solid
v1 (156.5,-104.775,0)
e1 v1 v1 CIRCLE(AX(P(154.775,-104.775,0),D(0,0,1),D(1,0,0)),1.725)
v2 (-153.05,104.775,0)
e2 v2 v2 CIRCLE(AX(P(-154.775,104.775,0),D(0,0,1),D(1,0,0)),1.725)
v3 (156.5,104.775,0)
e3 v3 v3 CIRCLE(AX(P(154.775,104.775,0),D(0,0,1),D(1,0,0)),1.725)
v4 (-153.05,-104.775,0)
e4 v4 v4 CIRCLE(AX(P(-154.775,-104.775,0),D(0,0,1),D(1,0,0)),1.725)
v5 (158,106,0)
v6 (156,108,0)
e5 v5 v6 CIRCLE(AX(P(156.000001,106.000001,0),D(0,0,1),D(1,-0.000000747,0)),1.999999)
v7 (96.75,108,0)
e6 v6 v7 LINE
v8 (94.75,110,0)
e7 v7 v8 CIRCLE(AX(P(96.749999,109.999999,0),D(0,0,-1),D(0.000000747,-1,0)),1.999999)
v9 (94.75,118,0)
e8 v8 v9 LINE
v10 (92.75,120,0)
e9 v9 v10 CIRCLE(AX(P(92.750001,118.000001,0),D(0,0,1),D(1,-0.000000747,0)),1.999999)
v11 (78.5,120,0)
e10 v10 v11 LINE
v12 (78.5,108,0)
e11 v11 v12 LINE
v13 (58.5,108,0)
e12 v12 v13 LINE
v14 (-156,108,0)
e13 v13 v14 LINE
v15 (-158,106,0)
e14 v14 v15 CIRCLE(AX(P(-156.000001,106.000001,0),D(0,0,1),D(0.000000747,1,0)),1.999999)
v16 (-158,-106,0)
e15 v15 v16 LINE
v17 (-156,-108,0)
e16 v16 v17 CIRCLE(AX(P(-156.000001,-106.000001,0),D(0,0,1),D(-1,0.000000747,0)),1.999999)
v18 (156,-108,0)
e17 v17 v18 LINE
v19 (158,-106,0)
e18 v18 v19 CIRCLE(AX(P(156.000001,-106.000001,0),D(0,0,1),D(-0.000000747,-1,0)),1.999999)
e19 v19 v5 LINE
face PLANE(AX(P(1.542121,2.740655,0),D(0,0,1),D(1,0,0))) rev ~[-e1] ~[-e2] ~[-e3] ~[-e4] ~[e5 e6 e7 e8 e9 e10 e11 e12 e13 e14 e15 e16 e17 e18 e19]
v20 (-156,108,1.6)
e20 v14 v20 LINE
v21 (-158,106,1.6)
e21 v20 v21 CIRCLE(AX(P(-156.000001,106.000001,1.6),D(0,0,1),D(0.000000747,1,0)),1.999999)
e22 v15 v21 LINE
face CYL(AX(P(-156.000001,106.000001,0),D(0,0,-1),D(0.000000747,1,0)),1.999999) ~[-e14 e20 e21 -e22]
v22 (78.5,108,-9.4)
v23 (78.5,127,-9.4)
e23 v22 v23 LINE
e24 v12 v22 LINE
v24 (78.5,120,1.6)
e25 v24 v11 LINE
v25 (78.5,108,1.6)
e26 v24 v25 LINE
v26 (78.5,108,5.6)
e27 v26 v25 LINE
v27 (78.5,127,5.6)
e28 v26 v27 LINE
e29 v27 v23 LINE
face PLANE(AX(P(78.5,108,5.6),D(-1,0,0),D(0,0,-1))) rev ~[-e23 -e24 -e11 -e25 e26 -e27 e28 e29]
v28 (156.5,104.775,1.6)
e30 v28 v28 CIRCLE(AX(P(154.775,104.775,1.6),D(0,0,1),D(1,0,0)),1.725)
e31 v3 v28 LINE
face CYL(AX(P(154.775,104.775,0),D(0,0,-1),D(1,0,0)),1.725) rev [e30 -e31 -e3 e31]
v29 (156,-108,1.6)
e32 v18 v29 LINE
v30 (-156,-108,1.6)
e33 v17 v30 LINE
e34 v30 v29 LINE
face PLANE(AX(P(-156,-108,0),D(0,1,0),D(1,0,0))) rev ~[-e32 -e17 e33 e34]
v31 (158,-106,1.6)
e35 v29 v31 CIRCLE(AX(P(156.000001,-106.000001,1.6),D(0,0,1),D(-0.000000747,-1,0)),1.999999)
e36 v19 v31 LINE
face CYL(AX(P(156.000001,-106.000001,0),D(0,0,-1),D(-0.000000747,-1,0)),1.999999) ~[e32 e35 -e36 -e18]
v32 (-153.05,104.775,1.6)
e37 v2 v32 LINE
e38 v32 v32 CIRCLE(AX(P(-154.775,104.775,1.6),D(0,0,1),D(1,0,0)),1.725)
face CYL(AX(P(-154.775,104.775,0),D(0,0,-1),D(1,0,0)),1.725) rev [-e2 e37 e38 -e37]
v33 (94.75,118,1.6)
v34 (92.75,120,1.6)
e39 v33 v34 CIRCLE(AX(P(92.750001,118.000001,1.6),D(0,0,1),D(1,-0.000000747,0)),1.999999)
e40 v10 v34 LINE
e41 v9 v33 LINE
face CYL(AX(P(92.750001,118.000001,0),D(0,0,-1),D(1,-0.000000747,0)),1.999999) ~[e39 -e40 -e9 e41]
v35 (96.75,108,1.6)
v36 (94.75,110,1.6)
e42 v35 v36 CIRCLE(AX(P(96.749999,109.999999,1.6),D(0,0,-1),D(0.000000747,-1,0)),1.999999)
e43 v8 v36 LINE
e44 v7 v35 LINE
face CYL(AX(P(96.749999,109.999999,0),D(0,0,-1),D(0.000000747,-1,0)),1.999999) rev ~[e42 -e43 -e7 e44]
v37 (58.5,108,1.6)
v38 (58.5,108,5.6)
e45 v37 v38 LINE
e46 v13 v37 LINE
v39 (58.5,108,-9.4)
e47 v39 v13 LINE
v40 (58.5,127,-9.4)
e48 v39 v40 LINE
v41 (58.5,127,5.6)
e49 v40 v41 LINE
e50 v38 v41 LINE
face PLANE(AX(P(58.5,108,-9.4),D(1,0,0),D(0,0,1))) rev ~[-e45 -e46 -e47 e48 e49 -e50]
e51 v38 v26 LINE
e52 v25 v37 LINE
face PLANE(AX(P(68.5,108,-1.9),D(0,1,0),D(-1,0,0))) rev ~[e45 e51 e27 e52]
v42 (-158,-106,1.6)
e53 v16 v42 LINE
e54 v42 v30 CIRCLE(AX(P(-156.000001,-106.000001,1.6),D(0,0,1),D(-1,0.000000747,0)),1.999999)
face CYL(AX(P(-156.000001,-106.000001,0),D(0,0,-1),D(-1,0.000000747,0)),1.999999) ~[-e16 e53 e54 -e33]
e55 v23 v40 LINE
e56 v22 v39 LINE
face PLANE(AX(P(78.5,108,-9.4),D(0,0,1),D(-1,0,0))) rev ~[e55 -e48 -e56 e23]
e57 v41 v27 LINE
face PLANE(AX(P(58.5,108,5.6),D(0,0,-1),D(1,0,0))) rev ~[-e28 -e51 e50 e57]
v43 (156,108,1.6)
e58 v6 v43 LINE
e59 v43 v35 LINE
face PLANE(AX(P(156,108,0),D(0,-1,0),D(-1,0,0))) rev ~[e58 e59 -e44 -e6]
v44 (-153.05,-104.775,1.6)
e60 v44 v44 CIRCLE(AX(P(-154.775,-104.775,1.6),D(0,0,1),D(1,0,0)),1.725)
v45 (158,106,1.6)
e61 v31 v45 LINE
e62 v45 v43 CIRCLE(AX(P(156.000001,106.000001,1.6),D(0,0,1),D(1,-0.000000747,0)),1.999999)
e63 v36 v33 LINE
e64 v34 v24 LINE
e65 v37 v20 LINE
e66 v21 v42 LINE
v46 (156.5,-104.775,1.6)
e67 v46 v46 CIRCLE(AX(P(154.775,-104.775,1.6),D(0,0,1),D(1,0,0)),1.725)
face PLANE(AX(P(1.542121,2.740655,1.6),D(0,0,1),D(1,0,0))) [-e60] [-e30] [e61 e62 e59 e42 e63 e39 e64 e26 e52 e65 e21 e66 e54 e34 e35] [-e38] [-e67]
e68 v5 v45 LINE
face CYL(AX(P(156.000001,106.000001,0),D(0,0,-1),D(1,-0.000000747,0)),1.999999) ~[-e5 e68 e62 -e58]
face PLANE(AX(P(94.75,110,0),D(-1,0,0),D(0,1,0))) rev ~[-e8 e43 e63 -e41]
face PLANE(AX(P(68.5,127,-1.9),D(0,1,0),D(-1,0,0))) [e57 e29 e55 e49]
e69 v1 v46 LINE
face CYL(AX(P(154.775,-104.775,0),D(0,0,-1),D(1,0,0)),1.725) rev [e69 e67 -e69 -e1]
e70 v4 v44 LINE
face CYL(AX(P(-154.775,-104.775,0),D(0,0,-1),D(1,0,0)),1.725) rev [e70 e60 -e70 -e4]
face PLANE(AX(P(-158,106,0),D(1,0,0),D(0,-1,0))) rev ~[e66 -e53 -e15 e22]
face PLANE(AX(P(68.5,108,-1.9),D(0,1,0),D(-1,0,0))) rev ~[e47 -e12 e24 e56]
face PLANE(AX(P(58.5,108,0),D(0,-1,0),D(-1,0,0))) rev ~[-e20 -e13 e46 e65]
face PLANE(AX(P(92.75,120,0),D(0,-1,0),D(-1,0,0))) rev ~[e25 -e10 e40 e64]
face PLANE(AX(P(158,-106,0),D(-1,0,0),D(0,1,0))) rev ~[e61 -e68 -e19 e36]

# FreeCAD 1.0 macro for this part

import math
import FreeCAD as App
import Part
import Sketcher
Q = App.Units.Quantity

doc = App.newDocument("Part")
body = doc.addObject("PartDesign::Body", "Body")

# Sketch on XY plane
sketch1 = doc.addObject("Sketcher::SketchObject", "Sketch")
body.addObject(sketch1)
sketch1.AttachmentSupport = (doc.XY_Plane, [""])
sketch1.MapMode = "FlatFace"
sketch1.addGeometry([
    Part.ArcOfCircle(Part.Circle(App.Vector(156.000001, 106.000001, 0), App.Vector(0, 0, 1), 1.999999), math.radians(-0.000043), math.radians(90.000043)),  # 0
    Part.LineSegment(App.Vector(156, 108, 0), App.Vector(96.75, 108, 0)),  # 1
    Part.ArcOfCircle(Part.Circle(App.Vector(96.749999, 109.999999, 0), App.Vector(0, 0, 1), 1.999999), math.radians(179.999957), math.radians(270.000043)),  # 2
    Part.LineSegment(App.Vector(94.75, 110, 0), App.Vector(94.75, 118, 0)),  # 3
    Part.ArcOfCircle(Part.Circle(App.Vector(92.750001, 118.000001, 0), App.Vector(0, 0, 1), 1.999999), math.radians(-0.000043), math.radians(90.000043)),  # 4
    Part.LineSegment(App.Vector(92.75, 120, 0), App.Vector(58.5, 120, 0)),  # 5
    Part.LineSegment(App.Vector(58.5, 120, 0), App.Vector(58.5, 108, 0)),  # 6
    Part.LineSegment(App.Vector(58.5, 108, 0), App.Vector(-156, 108, 0)),  # 7
    Part.ArcOfCircle(Part.Circle(App.Vector(-156.000001, 106.000001, 0), App.Vector(0, 0, 1), 1.999999), math.radians(89.999957), math.radians(180.000043)),  # 8
    Part.LineSegment(App.Vector(-158, 106, 0), App.Vector(-158, -106, 0)),  # 9
    Part.ArcOfCircle(Part.Circle(App.Vector(-156.000001, -106.000001, 0), App.Vector(0, 0, 1), 1.999999), math.radians(179.999957), math.radians(270.000043)),  # 10
    Part.LineSegment(App.Vector(-156, -108, 0), App.Vector(156, -108, 0)),  # 11
    Part.ArcOfCircle(Part.Circle(App.Vector(156.000001, -106.000001, 0), App.Vector(0, 0, 1), 1.999999), math.radians(-90.000043), math.radians(0.000043)),  # 12
    Part.LineSegment(App.Vector(158, -106, 0), App.Vector(158, 106, 0)),  # 13
    Part.Circle(App.Vector(-154.775, -104.775, 0), App.Vector(0, 0, 1), 1.725),  # 14
    Part.Circle(App.Vector(154.775, -104.775, 0), App.Vector(0, 0, 1), 1.725),  # 15
    Part.Circle(App.Vector(-154.775, 104.775, 0), App.Vector(0, 0, 1), 1.725),  # 16
    Part.Circle(App.Vector(154.775, 104.775, 0), App.Vector(0, 0, 1), 1.725),  # 17
], False)
sketch1.addConstraint([
    Sketcher.Constraint("Tangent", 0, 2, 1, 1),
    Sketcher.Constraint("Tangent", 1, 2, 2, 2),
    Sketcher.Constraint("Tangent", 2, 1, 3, 1),
    Sketcher.Constraint("Tangent", 3, 2, 4, 1),
    Sketcher.Constraint("Tangent", 4, 2, 5, 1),
    Sketcher.Constraint("Coincident", 5, 2, 6, 1),
    Sketcher.Constraint("Coincident", 6, 2, 7, 1),
    Sketcher.Constraint("Tangent", 7, 2, 8, 1),
    Sketcher.Constraint("Tangent", 8, 2, 9, 1),
    Sketcher.Constraint("Tangent", 9, 2, 10, 1),
    Sketcher.Constraint("Tangent", 10, 2, 11, 1),
    Sketcher.Constraint("Tangent", 11, 2, 12, 1),
    Sketcher.Constraint("Tangent", 12, 2, 13, 1),
    Sketcher.Constraint("Tangent", 13, 2, 0, 1),
    Sketcher.Constraint("Horizontal", 1),
    Sketcher.Constraint("Vertical", 3),
    Sketcher.Constraint("Horizontal", 5),
    Sketcher.Constraint("Vertical", 6),
    Sketcher.Constraint("Horizontal", 7),
    Sketcher.Constraint("Vertical", 9),
    Sketcher.Constraint("Horizontal", 11),
    Sketcher.Constraint("Vertical", 13),
    Sketcher.Constraint("Equal", 0, 2),
    Sketcher.Constraint("Equal", 2, 4),
    Sketcher.Constraint("Equal", 4, 8),
    Sketcher.Constraint("Equal", 8, 10),
    Sketcher.Constraint("Equal", 10, 12),
    Sketcher.Constraint("Equal", 14, 15),
    Sketcher.Constraint("Equal", 15, 16),
    Sketcher.Constraint("Equal", 16, 17),
    Sketcher.Constraint("Symmetric", 0, 3, 10, 3, -1, 1),
    Sketcher.Constraint("Symmetric", 15, 3, 16, 3, -1, 1),
    Sketcher.Constraint("Symmetric", 14, 3, 17, 3, -1, 1),
    Sketcher.Constraint("Symmetric", 14, 3, 15, 3, -2),
    Sketcher.Constraint("Horizontal", 0, 3, 8, 3),
    Sketcher.Constraint("Radius", 0, Q("1.999999 mm")),
    Sketcher.Constraint("Diameter", 14, Q("3.45 mm")),
    Sketcher.Constraint("DistanceX", 11, 1, 11, 2, Q("312 mm")),
    Sketcher.Constraint("DistanceY", 3, 1, 3, 2, Q("8 mm")),
    Sketcher.Constraint("DistanceY", 9, 2, 9, 1, Q("212 mm")),
    Sketcher.Constraint("DistanceX", 7, 2, 7, 1, Q("214.5 mm")),
    Sketcher.Constraint("DistanceX", 1, 2, 1, 1, Q("59.25 mm")),
    Sketcher.Constraint("DistanceX", 14, 3, 15, 3, Q("309.55 mm")),
    Sketcher.Constraint("DistanceY", 14, 3, 16, 3, Q("209.55 mm")),
])
pad1 = doc.addObject("PartDesign::Pad", "Pad")
body.addObject(pad1)
pad1.Profile = sketch1
pad1.Length = 1.6

# Sketch on XZ plane
sketch2 = doc.addObject("Sketcher::SketchObject", "Sketch001")
body.addObject(sketch2)
sketch2.AttachmentSupport = (doc.XZ_Plane, [""])
sketch2.MapMode = "FlatFace"
sketch2.AttachmentOffset = App.Placement(App.Vector(0, 0, -108), App.Rotation())
sketch2.addGeometry([
    Part.LineSegment(App.Vector(58.5, 5.6, 0), App.Vector(78.5, 5.6, 0)),
    Part.LineSegment(App.Vector(78.5, 5.6, 0), App.Vector(78.5, -9.4, 0)),
    Part.LineSegment(App.Vector(78.5, -9.4, 0), App.Vector(58.5, -9.4, 0)),
    Part.LineSegment(App.Vector(58.5, -9.4, 0), App.Vector(58.5, 5.6, 0)),
], False)
sketch2.addConstraint([
    Sketcher.Constraint("Coincident", 0, 2, 1, 1),
    Sketcher.Constraint("Coincident", 1, 2, 2, 1),
    Sketcher.Constraint("Coincident", 2, 2, 3, 1),
    Sketcher.Constraint("Coincident", 3, 2, 0, 1),
    Sketcher.Constraint("Horizontal", 0),
    Sketcher.Constraint("Vertical", 1),
    Sketcher.Constraint("Horizontal", 2),
    Sketcher.Constraint("Vertical", 3),
    Sketcher.Constraint("DistanceX", 0, 1, 0, 2, Q("20 mm")),
    Sketcher.Constraint("DistanceY", 1, 2, 1, 1, Q("15 mm")),
    Sketcher.Constraint("DistanceX", -1, 1, 0, 2, Q("78.5 mm")),
    Sketcher.Constraint("DistanceY", -1, 1, 0, 2, Q("5.6 mm")),
])
pad2 = doc.addObject("PartDesign::Pad", "Pad001")
body.addObject(pad2)
pad2.Profile = sketch2
pad2.Length = 19
pad2.Reversed = True

doc.recompute()
